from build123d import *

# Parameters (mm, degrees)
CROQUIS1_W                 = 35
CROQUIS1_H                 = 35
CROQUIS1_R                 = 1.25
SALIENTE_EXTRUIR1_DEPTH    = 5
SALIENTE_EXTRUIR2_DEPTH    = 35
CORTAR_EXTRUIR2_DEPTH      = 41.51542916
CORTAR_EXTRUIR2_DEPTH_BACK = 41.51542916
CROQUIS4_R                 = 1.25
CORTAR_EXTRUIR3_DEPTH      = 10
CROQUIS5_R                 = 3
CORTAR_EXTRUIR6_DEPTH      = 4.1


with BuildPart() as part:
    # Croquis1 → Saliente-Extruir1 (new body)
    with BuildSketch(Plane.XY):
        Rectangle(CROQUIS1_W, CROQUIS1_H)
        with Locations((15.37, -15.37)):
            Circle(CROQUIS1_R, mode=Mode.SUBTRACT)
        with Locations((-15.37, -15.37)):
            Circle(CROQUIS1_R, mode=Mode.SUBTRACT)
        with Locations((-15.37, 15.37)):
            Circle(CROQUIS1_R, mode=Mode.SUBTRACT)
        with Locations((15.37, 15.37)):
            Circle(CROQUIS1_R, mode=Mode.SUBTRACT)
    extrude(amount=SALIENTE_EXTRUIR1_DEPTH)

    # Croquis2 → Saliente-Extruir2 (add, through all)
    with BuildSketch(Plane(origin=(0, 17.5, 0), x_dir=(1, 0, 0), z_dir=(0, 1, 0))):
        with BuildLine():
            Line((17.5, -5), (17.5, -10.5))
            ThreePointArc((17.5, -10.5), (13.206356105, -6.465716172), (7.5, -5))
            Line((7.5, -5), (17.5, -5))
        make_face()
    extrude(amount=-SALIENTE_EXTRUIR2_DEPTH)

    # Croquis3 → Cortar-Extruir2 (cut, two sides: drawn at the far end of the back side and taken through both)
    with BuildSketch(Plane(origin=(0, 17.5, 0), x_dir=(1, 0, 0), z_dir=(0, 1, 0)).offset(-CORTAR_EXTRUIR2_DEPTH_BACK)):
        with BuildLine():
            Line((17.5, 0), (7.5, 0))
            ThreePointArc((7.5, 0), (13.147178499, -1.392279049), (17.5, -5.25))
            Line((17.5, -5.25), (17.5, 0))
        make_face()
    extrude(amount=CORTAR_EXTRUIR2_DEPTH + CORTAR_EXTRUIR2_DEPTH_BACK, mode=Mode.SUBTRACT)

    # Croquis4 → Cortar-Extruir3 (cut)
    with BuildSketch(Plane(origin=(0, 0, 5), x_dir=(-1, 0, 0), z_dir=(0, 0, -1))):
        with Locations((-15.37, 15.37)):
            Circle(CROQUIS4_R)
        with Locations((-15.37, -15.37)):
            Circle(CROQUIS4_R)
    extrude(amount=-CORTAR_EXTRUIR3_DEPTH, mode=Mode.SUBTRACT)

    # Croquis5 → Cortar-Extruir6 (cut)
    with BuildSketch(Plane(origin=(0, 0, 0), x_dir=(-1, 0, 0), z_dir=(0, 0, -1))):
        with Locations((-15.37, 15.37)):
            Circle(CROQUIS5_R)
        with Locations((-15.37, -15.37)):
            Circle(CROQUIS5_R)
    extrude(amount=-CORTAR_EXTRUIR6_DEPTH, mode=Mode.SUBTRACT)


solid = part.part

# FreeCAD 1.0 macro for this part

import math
import FreeCAD as App
import Part
import Sketcher
from FreeCAD import Vector
Q = App.Units.Quantity


def add_polygon(sketch, points):
    """Adds a closed chain of lines whose ends are joined by coincident constraints."""
    first, n = sketch.GeometryCount, len(points)
    for a, b in zip(points, points[1:] + points[:1]):
        sketch.addGeometry(Part.LineSegment(App.Vector(*a, 0), App.Vector(*b, 0)), False)
    for i in range(n):
        sketch.addConstraint(Sketcher.Constraint("Coincident", first + i, 2, first + (i + 1) % n, 1))

doc = App.newDocument("Part")
body = doc.addObject("PartDesign::Body", "Body")

# Sketch on XY plane
sketch1 = body.newObject("Sketcher::SketchObject", "Sketch")
sketch1.AttachmentSupport = (doc.getObject("XY_Plane"), [""])
sketch1.MapMode = "FlatFace"
add_polygon(sketch1, [(-17.5, 17.5), (-17.5, -17.5), (17.5, -17.5), (17.5, 17.5)])  # lines 0-3
sketch1.addGeometry(Part.Circle(Vector(-15.37, -15.37, 0), Vector(0, 0, 1), 1.25), False)  # 4
sketch1.addGeometry(Part.Circle(Vector(15.37, -15.37, 0), Vector(0, 0, 1), 1.25), False)  # 5
sketch1.addGeometry(Part.Circle(Vector(-15.37, 15.37, 0), Vector(0, 0, 1), 1.25), False)  # 6
sketch1.addGeometry(Part.Circle(Vector(15.37, 15.37, 0), Vector(0, 0, 1), 1.25), False)  # 7
sketch1.addConstraint([
    Sketcher.Constraint("Vertical", 0),
    Sketcher.Constraint("Horizontal", 1),
    Sketcher.Constraint("Vertical", 2),
    Sketcher.Constraint("Horizontal", 3),
    Sketcher.Constraint("Equal", 4, 5),
    Sketcher.Constraint("Equal", 5, 6),
    Sketcher.Constraint("Equal", 6, 7),
    Sketcher.Constraint("Symmetric", 5, 3, 6, 3, -1, 1),
    Sketcher.Constraint("Symmetric", 4, 3, 7, 3, -1, 1),
    Sketcher.Constraint("Symmetric", 0, 2, 2, 2, -1, 1),
    Sketcher.Constraint("Symmetric", 4, 3, 5, 3, -2),
    Sketcher.Constraint("Equal", 3, 0),
    Sketcher.Constraint("Diameter", 4, Q("2.5 mm")),
    Sketcher.Constraint("DistanceX", 1, 1, 1, 2, Q("35 mm")),
    Sketcher.Constraint("DistanceX", 4, 3, -1, 1, Q("15.37 mm")),
    Sketcher.Constraint("DistanceY", 4, 3, -1, 1, Q("15.37 mm")),
])
pad1 = body.newObject("PartDesign::Pad", "Pad")
pad1.Profile = sketch1
pad1.Length = 5

# Sketch on XZ plane
sketch2 = body.newObject("Sketcher::SketchObject", "Sketch001")
sketch2.AttachmentSupport = (doc.getObject("XZ_Plane"), [""])
sketch2.MapMode = "FlatFace"
sketch2.AttachmentOffset = App.Placement(Vector(0, 0, -17.5), App.Rotation())
sketch2.addGeometry([
    Part.LineSegment(Vector(17.5, 10.5, 0), Vector(17.5, 5, 0)),
    Part.LineSegment(Vector(17.5, 5, 0), Vector(7.5, 5, 0)),
    Part.ArcOfCircle(Part.Circle(Vector(7.5, 16.840909, 0), Vector(0, 0, 1), 11.840909), math.radians(-90), math.radians(-32.378413)),
], False)
sketch2.addConstraint([
    Sketcher.Constraint("Coincident", 0, 2, 1, 1),
    Sketcher.Constraint("Tangent", 1, 2, 2, 1),
    Sketcher.Constraint("Coincident", 2, 2, 0, 1),
    Sketcher.Constraint("Vertical", 0),
    Sketcher.Constraint("Horizontal", 1),
    Sketcher.Constraint("DistanceX", 1, 2, 1, 1, Q("10 mm")),
    Sketcher.Constraint("DistanceY", 0, 2, 0, 1, Q("5.5 mm")),
    Sketcher.Constraint("DistanceY", -1, 1, 0, 2, Q("5 mm")),
    Sketcher.Constraint("DistanceX", -1, 1, 2, 3, Q("7.5 mm")),
])
pad2 = body.newObject("PartDesign::Pad", "Pad001")
pad2.Profile = sketch2
pad2.Length = 35

# Sketch on XZ plane
sketch3 = body.newObject("Sketcher::SketchObject", "Sketch002")
sketch3.AttachmentSupport = (doc.getObject("XZ_Plane"), [""])
sketch3.MapMode = "FlatFace"
sketch3.AttachmentOffset = App.Placement(Vector(0, 0, -17.5), App.Rotation())
sketch3.addGeometry([
    Part.LineSegment(Vector(17.5, 0, 0), Vector(7.5, 0, 0)),
    Part.ArcOfCircle(Part.Circle(Vector(7.5, 12.14881, 0), Vector(0, 0, 1), 12.14881), math.radians(-90), math.radians(-34.601054)),
    Part.LineSegment(Vector(17.5, 5.25, 0), Vector(17.5, 0, 0)),
], False)
sketch3.addConstraint([
    Sketcher.Constraint("Tangent", 0, 2, 1, 1),
    Sketcher.Constraint("Coincident", 1, 2, 2, 1),
    Sketcher.Constraint("Coincident", 2, 2, 0, 1),
    Sketcher.Constraint("Horizontal", 0),
    Sketcher.Constraint("Vertical", 2),
    Sketcher.Constraint("PointOnObject", 0, 2, -1),
    Sketcher.Constraint("DistanceX", 0, 2, 0, 1, Q("10 mm")),
    Sketcher.Constraint("DistanceY", 2, 2, 2, 1, Q("5.25 mm")),
    Sketcher.Constraint("DistanceX", -1, 1, 1, 3, Q("7.5 mm")),
])
pocket1 = body.newObject("PartDesign::Pocket", "Pocket")
pocket1.Profile = sketch3
pocket1.Type = "ThroughAll"
pocket1.Midplane = True

# Sketch on XY plane
sketch4 = body.newObject("Sketcher::SketchObject", "Sketch003")
sketch4.AttachmentSupport = (doc.getObject("XY_Plane"), [""])
sketch4.MapMode = "FlatFace"
sketch4.AttachmentOffset = App.Placement(Vector(0, 0, 5), App.Rotation())
sketch4.addGeometry([
    Part.Circle(Vector(15.37, 15.37, 0), Vector(0, 0, 1), 1.25),
    Part.Circle(Vector(15.37, -15.37, 0), Vector(0, 0, 1), 1.25),
], False)
sketch4.addConstraint([
    Sketcher.Constraint("Equal", 0, 1),
    Sketcher.Constraint("Symmetric", 0, 3, 1, 3, -1),
    Sketcher.Constraint("Diameter", 0, Q("2.5 mm")),
    Sketcher.Constraint("DistanceX", -1, 1, 0, 3, Q("15.37 mm")),
    Sketcher.Constraint("DistanceY", -1, 1, 0, 3, Q("15.37 mm")),
])
pocket2 = body.newObject("PartDesign::Pocket", "Pocket001")
pocket2.Profile = sketch4
pocket2.Length = 10
pocket2.Reversed = True

# Sketch on XY plane
sketch5 = body.newObject("Sketcher::SketchObject", "Sketch004")
sketch5.AttachmentSupport = (doc.getObject("XY_Plane"), [""])
sketch5.MapMode = "FlatFace"
sketch5.addGeometry([
    Part.Circle(Vector(15.37, 15.37, 0), Vector(0, 0, 1), 3),
    Part.Circle(Vector(15.37, -15.37, 0), Vector(0, 0, 1), 3),
], False)
sketch5.addConstraint([
    Sketcher.Constraint("Equal", 0, 1),
    Sketcher.Constraint("Symmetric", 0, 3, 1, 3, -1),
    Sketcher.Constraint("Diameter", 0, Q("6 mm")),
    Sketcher.Constraint("DistanceX", -1, 1, 0, 3, Q("15.37 mm")),
    Sketcher.Constraint("DistanceY", -1, 1, 0, 3, Q("15.37 mm")),
])
pocket3 = body.newObject("PartDesign::Pocket", "Pocket002")
pocket3.Profile = sketch5
pocket3.Length = 4.1
pocket3.Reversed = True

doc.recompute()
